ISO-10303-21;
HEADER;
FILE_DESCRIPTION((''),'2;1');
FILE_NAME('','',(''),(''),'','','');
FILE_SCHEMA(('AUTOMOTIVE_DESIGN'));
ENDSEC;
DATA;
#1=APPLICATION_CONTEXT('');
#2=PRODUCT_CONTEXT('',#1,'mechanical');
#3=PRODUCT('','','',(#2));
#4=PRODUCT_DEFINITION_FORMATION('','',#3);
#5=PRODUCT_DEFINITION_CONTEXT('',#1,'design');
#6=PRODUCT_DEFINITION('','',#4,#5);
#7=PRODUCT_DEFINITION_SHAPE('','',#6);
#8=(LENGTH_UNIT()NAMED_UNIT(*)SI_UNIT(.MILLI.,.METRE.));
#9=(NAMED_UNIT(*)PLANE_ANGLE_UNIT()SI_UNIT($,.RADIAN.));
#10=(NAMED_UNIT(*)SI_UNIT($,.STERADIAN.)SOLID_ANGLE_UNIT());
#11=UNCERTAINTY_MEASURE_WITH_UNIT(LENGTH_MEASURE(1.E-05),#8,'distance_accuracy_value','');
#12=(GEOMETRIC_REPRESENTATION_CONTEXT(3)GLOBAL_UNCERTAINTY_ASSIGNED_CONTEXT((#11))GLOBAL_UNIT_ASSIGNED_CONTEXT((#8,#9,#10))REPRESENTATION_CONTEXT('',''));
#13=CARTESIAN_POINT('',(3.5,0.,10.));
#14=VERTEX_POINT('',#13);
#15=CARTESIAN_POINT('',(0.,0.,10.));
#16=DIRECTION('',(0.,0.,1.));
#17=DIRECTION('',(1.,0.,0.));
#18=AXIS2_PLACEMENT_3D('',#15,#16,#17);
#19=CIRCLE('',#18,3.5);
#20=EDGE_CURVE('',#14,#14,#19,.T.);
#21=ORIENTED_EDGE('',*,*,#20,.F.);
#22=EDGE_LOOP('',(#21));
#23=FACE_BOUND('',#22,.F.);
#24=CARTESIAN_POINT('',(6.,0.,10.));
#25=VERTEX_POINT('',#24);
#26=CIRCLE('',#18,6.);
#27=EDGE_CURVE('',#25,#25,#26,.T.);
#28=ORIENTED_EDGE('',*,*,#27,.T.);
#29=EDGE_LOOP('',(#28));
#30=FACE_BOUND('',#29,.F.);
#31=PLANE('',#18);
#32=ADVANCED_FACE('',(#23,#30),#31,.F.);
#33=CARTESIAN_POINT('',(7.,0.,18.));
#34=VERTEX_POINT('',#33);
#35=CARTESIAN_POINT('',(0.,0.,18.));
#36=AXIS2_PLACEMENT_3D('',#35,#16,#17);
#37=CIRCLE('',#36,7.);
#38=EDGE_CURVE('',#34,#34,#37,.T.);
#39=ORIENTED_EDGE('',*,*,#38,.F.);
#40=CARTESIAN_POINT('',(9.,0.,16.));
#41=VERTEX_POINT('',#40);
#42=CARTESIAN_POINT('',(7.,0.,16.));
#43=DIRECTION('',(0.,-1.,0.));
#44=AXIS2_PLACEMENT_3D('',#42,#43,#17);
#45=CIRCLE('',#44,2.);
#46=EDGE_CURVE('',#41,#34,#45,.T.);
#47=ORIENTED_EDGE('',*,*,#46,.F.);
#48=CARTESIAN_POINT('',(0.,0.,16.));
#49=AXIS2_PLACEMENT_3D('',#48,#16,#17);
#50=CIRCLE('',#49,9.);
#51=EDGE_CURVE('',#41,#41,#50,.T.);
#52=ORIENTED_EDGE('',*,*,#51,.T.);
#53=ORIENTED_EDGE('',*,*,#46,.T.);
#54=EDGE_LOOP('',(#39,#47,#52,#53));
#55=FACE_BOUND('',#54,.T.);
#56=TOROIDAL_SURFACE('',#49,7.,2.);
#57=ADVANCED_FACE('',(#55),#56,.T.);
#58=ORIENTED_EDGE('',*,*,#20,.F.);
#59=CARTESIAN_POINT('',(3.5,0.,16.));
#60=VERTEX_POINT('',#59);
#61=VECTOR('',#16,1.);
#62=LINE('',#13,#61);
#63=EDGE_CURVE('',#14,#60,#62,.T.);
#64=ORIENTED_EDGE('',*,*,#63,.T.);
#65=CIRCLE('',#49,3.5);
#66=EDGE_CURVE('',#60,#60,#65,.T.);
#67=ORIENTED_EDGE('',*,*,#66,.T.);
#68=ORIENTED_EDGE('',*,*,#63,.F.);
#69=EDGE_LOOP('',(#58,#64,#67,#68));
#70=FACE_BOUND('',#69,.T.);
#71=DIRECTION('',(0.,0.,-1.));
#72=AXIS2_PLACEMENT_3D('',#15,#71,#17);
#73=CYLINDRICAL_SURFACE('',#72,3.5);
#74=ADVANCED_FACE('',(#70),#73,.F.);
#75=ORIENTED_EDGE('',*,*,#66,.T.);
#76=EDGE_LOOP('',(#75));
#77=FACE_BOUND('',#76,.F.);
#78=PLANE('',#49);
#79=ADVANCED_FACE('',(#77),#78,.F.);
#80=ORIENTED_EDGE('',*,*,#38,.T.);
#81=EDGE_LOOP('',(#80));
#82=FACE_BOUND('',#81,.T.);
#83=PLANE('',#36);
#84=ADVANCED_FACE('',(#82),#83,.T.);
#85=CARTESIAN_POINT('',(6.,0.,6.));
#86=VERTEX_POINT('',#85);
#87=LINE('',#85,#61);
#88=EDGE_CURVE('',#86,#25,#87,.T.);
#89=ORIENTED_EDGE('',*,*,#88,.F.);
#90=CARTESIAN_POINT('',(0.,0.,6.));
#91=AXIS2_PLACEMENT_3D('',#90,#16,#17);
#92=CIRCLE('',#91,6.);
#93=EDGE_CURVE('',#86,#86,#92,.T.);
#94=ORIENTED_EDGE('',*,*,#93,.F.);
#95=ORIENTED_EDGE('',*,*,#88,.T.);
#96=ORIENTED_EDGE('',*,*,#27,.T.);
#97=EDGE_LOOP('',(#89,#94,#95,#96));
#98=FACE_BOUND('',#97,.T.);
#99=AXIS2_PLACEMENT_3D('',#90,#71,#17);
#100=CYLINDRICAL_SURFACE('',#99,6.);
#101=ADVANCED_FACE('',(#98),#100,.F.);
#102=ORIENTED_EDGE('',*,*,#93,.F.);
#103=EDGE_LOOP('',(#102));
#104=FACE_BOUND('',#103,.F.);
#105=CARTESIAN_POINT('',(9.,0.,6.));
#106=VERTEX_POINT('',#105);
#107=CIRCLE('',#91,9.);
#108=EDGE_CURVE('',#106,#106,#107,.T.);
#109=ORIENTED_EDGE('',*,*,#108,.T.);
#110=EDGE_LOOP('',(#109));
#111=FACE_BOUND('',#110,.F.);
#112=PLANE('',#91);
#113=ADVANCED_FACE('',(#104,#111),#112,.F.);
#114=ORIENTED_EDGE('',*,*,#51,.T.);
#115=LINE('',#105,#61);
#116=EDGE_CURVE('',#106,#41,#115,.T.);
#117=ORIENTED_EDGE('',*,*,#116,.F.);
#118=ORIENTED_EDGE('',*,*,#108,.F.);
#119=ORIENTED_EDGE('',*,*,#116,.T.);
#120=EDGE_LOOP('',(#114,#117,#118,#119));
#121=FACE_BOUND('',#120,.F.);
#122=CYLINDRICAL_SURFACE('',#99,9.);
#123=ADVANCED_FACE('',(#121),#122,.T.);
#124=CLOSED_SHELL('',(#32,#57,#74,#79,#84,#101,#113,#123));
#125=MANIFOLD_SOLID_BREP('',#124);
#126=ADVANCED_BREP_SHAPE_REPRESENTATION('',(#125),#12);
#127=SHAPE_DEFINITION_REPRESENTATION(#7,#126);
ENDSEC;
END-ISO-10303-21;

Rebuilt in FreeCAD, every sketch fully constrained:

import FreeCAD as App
import Part
import Sketcher
from FreeCAD import Vector
Q = App.Units.Quantity


def edges_at(feature, points):
    """Names of the edges that pass closest to the given points."""
    edges = feature.Shape.Edges
    near = lambda p: min(range(len(edges)), key=lambda i: edges[i].distToShape(Part.Vertex(*p))[0])
    return sorted({f"Edge{near(p) + 1}" for p in points})

doc = App.newDocument("Part")
body = doc.addObject("PartDesign::Body", "Body")

# Sketch on XY plane
sketch1 = body.newObject("Sketcher::SketchObject", "Sketch")
sketch1.AttachmentSupport = (doc.getObject("XY_Plane"), [""])
sketch1.MapMode = "FlatFace"
sketch1.AttachmentOffset = App.Placement(Vector(0, 0, 10), App.Rotation())
sketch1.addGeometry(Part.Circle(Vector(0, 0, 0), Vector(0, 0, 1), 3.5), False)
sketch1.addConstraint([
    Sketcher.Constraint("Coincident", 0, 3, -1, 1),
    Sketcher.Constraint("Diameter", 0, Q("7 mm")),
])
pad1 = body.newObject("PartDesign::Pad", "Pad")
pad1.Profile = sketch1
pad1.Length = 6
body2 = doc.addObject("PartDesign::Body", "Body001")

# Sketch on XY plane
sketch2 = body2.newObject("Sketcher::SketchObject", "Sketch001")
sketch2.AttachmentSupport = (doc.getObject("XY_Plane001"), [""])
sketch2.MapMode = "FlatFace"
sketch2.AttachmentOffset = App.Placement(Vector(0, 0, 6), App.Rotation())
sketch2.addGeometry(Part.Circle(Vector(0, 0, 0), Vector(0, 0, 1), 6), False)
sketch2.addConstraint([
    Sketcher.Constraint("Coincident", 0, 3, -1, 1),
    Sketcher.Constraint("Diameter", 0, Q("12 mm")),
])
pad2 = body2.newObject("PartDesign::Pad", "Pad001")
pad2.Profile = sketch2
pad2.Length = 4
body3 = doc.addObject("PartDesign::Body", "Body002")

# Sketch on XY plane
sketch3 = body3.newObject("Sketcher::SketchObject", "Sketch002")
sketch3.AttachmentSupport = (doc.getObject("XY_Plane002"), [""])
sketch3.MapMode = "FlatFace"
sketch3.AttachmentOffset = App.Placement(Vector(0, 0, 6), App.Rotation())
sketch3.addGeometry(Part.Circle(Vector(0, 0, 0), Vector(0, 0, 1), 9), False)
sketch3.addConstraint([
    Sketcher.Constraint("Coincident", 0, 3, -1, 1),
    Sketcher.Constraint("Diameter", 0, Q("18 mm")),
])
pad3 = body3.newObject("PartDesign::Pad", "Pad002")
pad3.Profile = sketch3
pad3.Length = 12
doc.recompute()

boolean = body3.newObject("PartDesign::Boolean", "Boolean")
boolean.Type = "Cut"
boolean.addObjects([body2])
doc.recompute()

boolean2 = body3.newObject("PartDesign::Boolean", "Boolean001")
boolean2.Type = "Cut"
boolean2.addObjects([body])
doc.recompute()

fillet = body3.newObject("PartDesign::Fillet", "Fillet")
fillet.Base = (boolean2, edges_at(boolean2, [(-9, 0, 18)]))
fillet.Radius = 2

doc.recompute()
